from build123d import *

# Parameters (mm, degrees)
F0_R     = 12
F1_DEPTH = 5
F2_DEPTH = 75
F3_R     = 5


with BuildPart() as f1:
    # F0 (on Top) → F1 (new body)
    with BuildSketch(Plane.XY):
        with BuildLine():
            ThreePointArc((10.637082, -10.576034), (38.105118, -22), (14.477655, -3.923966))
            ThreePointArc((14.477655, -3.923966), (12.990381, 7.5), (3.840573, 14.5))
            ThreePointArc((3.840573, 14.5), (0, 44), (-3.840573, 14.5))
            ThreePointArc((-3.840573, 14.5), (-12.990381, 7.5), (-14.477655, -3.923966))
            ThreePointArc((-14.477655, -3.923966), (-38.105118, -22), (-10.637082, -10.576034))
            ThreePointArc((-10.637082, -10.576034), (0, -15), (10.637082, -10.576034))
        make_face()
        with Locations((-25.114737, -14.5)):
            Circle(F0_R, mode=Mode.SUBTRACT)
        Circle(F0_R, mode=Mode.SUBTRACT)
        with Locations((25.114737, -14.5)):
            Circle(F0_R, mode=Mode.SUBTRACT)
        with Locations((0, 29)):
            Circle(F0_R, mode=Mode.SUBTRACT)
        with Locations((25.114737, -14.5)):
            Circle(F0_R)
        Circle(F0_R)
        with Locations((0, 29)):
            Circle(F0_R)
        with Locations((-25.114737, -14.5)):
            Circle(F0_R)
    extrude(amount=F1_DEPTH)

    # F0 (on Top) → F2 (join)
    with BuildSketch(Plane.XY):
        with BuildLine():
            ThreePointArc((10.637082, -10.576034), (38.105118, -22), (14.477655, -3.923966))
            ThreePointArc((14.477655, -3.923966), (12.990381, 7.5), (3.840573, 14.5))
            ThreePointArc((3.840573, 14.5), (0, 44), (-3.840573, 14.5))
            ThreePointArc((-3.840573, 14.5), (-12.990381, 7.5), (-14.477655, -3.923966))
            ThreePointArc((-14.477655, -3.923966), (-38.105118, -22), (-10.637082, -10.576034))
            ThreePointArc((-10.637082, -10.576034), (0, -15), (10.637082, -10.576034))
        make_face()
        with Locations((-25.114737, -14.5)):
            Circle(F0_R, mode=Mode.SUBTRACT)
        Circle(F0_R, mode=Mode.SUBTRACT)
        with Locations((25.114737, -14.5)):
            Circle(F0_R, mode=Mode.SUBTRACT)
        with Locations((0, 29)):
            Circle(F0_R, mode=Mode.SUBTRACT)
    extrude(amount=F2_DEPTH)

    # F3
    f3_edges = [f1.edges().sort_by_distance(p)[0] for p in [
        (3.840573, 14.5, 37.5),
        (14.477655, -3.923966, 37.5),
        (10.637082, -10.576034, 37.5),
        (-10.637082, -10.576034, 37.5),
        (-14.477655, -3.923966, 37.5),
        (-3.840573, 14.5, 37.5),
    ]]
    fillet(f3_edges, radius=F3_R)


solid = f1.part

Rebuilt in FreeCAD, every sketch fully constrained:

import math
import FreeCAD as App
import Part
import Sketcher

V = App.Vector
Q = App.Units.Quantity


def edges_at(feature, points):
    """Names of the edges that pass closest to the given points."""
    edges = feature.Shape.Edges
    near = lambda p: min(range(len(edges)), key=lambda i: edges[i].distToShape(Part.Vertex(*p))[0])
    return sorted({f"Edge{near(p) + 1}" for p in points})

doc = App.newDocument("Part")
body = doc.addObject("PartDesign::Body", "Body")

# Sketch on XY plane
sketch1 = doc.addObject("Sketcher::SketchObject", "Sketch")
body.addObject(sketch1)
sketch1.AttachmentSupport = (doc.XY_Plane, [""])
sketch1.MapMode = "FlatFace"
sketch1.addGeometry(Part.ArcOfCircle(Part.Circle(V(25, -14, 0), V(0, 0, 1), 15), math.radians(165), math.radians(495)), False)
sketch1.addGeometry(Part.ArcOfCircle(Part.Circle(V(0, 0, 0), V(0, 0, 1), 15), math.radians(-15), math.radians(75)), False)
sketch1.addGeometry(Part.ArcOfCircle(Part.Circle(V(0, 29, 0), V(0, 0, 1), 15), math.radians(-75), math.radians(255)), False)
sketch1.addGeometry(Part.ArcOfCircle(Part.Circle(V(0, 0, 0), V(0, 0, 1), 15), math.radians(105), math.radians(195)), False)
sketch1.addGeometry(Part.ArcOfCircle(Part.Circle(V(-25, -14, 0), V(0, 0, 1), 15), math.radians(45), math.radians(375)), False)
sketch1.addGeometry(Part.ArcOfCircle(Part.Circle(V(0, 0, 0), V(0, 0, 1), 15), math.radians(-135), math.radians(-45)), False)
sketch1.addConstraint(Sketcher.Constraint("Coincident", 0, 2, 1, 1))
sketch1.addConstraint(Sketcher.Constraint("Coincident", 1, 2, 2, 1))
sketch1.addConstraint(Sketcher.Constraint("Coincident", 2, 2, 3, 1))
sketch1.addConstraint(Sketcher.Constraint("Coincident", 3, 2, 4, 1))
sketch1.addConstraint(Sketcher.Constraint("Coincident", 4, 2, 5, 1))
sketch1.addConstraint(Sketcher.Constraint("Coincident", 5, 2, 0, 1))
sketch1.addConstraint(Sketcher.Constraint("Coincident", 1, 3, -1, 1))
sketch1.addConstraint(Sketcher.Constraint("Coincident", 3, 3, -1, 1))
sketch1.addConstraint(Sketcher.Constraint("Coincident", 5, 3, -1, 1))
sketch1.addConstraint(Sketcher.Constraint("Equal", 0, 1))
sketch1.addConstraint(Sketcher.Constraint("Equal", 1, 2))
sketch1.addConstraint(Sketcher.Constraint("Equal", 2, 3))
sketch1.addConstraint(Sketcher.Constraint("Equal", 3, 4))
sketch1.addConstraint(Sketcher.Constraint("Equal", 4, 5))
sketch1.addConstraint(Sketcher.Constraint("Symmetric", 0, 3, 4, 3, -2))
sketch1.addConstraint(Sketcher.Constraint("PointOnObject", 2, 3, -2))
sketch1.addConstraint(Sketcher.Constraint("Radius", 0, Q("15 mm")))
sketch1.addConstraint(Sketcher.Constraint("DistanceY", -1, 1, 2, 3, Q("29 mm")))
sketch1.addConstraint(Sketcher.Constraint("DistanceY", 0, 3, -1, 1, Q("14.5 mm")))
sketch1.addConstraint(Sketcher.Constraint("DistanceY", 4, 2, 3, 2, Q("6.652068 mm")))
pad1 = doc.addObject("PartDesign::Pad", "Pad")
body.addObject(pad1)
pad1.Profile = sketch1
pad1.Length = 5

# Sketch on XY plane
sketch2 = doc.addObject("Sketcher::SketchObject", "Sketch001")
body.addObject(sketch2)
sketch2.AttachmentSupport = (doc.XY_Plane, [""])
sketch2.MapMode = "FlatFace"
sketch2.addGeometry(Part.ArcOfCircle(Part.Circle(V(25, -14, 0), V(0, 0, 1), 15), math.radians(165), math.radians(495)), False)
sketch2.addGeometry(Part.ArcOfCircle(Part.Circle(V(0, 0, 0), V(0, 0, 1), 15), math.radians(-15), math.radians(75)), False)
sketch2.addGeometry(Part.ArcOfCircle(Part.Circle(V(0, 29, 0), V(0, 0, 1), 15), math.radians(-75), math.radians(255)), False)
sketch2.addGeometry(Part.ArcOfCircle(Part.Circle(V(0, 0, 0), V(0, 0, 1), 15), math.radians(105), math.radians(195)), False)
sketch2.addGeometry(Part.ArcOfCircle(Part.Circle(V(-25, -14, 0), V(0, 0, 1), 15), math.radians(45), math.radians(375)), False)
sketch2.addGeometry(Part.ArcOfCircle(Part.Circle(V(0, 0, 0), V(0, 0, 1), 15), math.radians(-135), math.radians(-45)), False)
sketch2.addGeometry(Part.Circle(V(-25, -14, 0), V(0, 0, 1), 12), False)
sketch2.addGeometry(Part.Circle(V(25, -14, 0), V(0, 0, 1), 12), False)
sketch2.addGeometry(Part.Circle(V(0, 0, 0), V(0, 0, 1), 12), False)
sketch2.addGeometry(Part.Circle(V(0, 29, 0), V(0, 0, 1), 12), False)
sketch2.addConstraint(Sketcher.Constraint("Coincident", 0, 2, 1, 1))
sketch2.addConstraint(Sketcher.Constraint("Coincident", 1, 2, 2, 1))
sketch2.addConstraint(Sketcher.Constraint("Coincident", 2, 2, 3, 1))
sketch2.addConstraint(Sketcher.Constraint("Coincident", 3, 2, 4, 1))
sketch2.addConstraint(Sketcher.Constraint("Coincident", 4, 2, 5, 1))
sketch2.addConstraint(Sketcher.Constraint("Coincident", 5, 2, 0, 1))
sketch2.addConstraint(Sketcher.Constraint("Coincident", 1, 3, -1, 1))
sketch2.addConstraint(Sketcher.Constraint("Coincident", 3, 3, -1, 1))
sketch2.addConstraint(Sketcher.Constraint("Coincident", 5, 3, -1, 1))
sketch2.addConstraint(Sketcher.Constraint("Coincident", 8, 3, -1, 1))
sketch2.addConstraint(Sketcher.Constraint("Coincident", 6, 3, 4, 3))
sketch2.addConstraint(Sketcher.Constraint("Coincident", 7, 3, 0, 3))
sketch2.addConstraint(Sketcher.Constraint("Coincident", 9, 3, 2, 3))
sketch2.addConstraint(Sketcher.Constraint("Equal", 0, 1))
sketch2.addConstraint(Sketcher.Constraint("Equal", 1, 2))
sketch2.addConstraint(Sketcher.Constraint("Equal", 2, 3))
sketch2.addConstraint(Sketcher.Constraint("Equal", 3, 4))
sketch2.addConstraint(Sketcher.Constraint("Equal", 4, 5))
sketch2.addConstraint(Sketcher.Constraint("Equal", 6, 7))
sketch2.addConstraint(Sketcher.Constraint("Equal", 7, 8))
sketch2.addConstraint(Sketcher.Constraint("Equal", 8, 9))
sketch2.addConstraint(Sketcher.Constraint("Symmetric", 0, 3, 4, 3, -2))
sketch2.addConstraint(Sketcher.Constraint("PointOnObject", 2, 3, -2))
sketch2.addConstraint(Sketcher.Constraint("Diameter", 6, Q("24 mm")))
sketch2.addConstraint(Sketcher.Constraint("Radius", 0, Q("15 mm")))
sketch2.addConstraint(Sketcher.Constraint("DistanceY", -1, 1, 2, 3, Q("29 mm")))
sketch2.addConstraint(Sketcher.Constraint("DistanceY", 0, 3, -1, 1, Q("14.5 mm")))
sketch2.addConstraint(Sketcher.Constraint("DistanceX", 0, 2, 7, 3, Q("10.637082 mm")))
pad2 = doc.addObject("PartDesign::Pad", "Pad001")
body.addObject(pad2)
pad2.Profile = sketch2
pad2.Length = 75
doc.recompute()

fillet = doc.addObject("PartDesign::Fillet", "Fillet")
body.addObject(fillet)
fillet.Base = (pad2, edges_at(pad2, [
    (3.841, 14.5, 37.5),
    (14.478, -3.924, 37.5),
    (10.637, -10.576, 37.5),
    (-10.637, -10.576, 37.5),
    (-14.478, -3.924, 37.5),
    (-3.841, 14.5, 37.5),
]))
fillet.Radius = 5

doc.recompute()
